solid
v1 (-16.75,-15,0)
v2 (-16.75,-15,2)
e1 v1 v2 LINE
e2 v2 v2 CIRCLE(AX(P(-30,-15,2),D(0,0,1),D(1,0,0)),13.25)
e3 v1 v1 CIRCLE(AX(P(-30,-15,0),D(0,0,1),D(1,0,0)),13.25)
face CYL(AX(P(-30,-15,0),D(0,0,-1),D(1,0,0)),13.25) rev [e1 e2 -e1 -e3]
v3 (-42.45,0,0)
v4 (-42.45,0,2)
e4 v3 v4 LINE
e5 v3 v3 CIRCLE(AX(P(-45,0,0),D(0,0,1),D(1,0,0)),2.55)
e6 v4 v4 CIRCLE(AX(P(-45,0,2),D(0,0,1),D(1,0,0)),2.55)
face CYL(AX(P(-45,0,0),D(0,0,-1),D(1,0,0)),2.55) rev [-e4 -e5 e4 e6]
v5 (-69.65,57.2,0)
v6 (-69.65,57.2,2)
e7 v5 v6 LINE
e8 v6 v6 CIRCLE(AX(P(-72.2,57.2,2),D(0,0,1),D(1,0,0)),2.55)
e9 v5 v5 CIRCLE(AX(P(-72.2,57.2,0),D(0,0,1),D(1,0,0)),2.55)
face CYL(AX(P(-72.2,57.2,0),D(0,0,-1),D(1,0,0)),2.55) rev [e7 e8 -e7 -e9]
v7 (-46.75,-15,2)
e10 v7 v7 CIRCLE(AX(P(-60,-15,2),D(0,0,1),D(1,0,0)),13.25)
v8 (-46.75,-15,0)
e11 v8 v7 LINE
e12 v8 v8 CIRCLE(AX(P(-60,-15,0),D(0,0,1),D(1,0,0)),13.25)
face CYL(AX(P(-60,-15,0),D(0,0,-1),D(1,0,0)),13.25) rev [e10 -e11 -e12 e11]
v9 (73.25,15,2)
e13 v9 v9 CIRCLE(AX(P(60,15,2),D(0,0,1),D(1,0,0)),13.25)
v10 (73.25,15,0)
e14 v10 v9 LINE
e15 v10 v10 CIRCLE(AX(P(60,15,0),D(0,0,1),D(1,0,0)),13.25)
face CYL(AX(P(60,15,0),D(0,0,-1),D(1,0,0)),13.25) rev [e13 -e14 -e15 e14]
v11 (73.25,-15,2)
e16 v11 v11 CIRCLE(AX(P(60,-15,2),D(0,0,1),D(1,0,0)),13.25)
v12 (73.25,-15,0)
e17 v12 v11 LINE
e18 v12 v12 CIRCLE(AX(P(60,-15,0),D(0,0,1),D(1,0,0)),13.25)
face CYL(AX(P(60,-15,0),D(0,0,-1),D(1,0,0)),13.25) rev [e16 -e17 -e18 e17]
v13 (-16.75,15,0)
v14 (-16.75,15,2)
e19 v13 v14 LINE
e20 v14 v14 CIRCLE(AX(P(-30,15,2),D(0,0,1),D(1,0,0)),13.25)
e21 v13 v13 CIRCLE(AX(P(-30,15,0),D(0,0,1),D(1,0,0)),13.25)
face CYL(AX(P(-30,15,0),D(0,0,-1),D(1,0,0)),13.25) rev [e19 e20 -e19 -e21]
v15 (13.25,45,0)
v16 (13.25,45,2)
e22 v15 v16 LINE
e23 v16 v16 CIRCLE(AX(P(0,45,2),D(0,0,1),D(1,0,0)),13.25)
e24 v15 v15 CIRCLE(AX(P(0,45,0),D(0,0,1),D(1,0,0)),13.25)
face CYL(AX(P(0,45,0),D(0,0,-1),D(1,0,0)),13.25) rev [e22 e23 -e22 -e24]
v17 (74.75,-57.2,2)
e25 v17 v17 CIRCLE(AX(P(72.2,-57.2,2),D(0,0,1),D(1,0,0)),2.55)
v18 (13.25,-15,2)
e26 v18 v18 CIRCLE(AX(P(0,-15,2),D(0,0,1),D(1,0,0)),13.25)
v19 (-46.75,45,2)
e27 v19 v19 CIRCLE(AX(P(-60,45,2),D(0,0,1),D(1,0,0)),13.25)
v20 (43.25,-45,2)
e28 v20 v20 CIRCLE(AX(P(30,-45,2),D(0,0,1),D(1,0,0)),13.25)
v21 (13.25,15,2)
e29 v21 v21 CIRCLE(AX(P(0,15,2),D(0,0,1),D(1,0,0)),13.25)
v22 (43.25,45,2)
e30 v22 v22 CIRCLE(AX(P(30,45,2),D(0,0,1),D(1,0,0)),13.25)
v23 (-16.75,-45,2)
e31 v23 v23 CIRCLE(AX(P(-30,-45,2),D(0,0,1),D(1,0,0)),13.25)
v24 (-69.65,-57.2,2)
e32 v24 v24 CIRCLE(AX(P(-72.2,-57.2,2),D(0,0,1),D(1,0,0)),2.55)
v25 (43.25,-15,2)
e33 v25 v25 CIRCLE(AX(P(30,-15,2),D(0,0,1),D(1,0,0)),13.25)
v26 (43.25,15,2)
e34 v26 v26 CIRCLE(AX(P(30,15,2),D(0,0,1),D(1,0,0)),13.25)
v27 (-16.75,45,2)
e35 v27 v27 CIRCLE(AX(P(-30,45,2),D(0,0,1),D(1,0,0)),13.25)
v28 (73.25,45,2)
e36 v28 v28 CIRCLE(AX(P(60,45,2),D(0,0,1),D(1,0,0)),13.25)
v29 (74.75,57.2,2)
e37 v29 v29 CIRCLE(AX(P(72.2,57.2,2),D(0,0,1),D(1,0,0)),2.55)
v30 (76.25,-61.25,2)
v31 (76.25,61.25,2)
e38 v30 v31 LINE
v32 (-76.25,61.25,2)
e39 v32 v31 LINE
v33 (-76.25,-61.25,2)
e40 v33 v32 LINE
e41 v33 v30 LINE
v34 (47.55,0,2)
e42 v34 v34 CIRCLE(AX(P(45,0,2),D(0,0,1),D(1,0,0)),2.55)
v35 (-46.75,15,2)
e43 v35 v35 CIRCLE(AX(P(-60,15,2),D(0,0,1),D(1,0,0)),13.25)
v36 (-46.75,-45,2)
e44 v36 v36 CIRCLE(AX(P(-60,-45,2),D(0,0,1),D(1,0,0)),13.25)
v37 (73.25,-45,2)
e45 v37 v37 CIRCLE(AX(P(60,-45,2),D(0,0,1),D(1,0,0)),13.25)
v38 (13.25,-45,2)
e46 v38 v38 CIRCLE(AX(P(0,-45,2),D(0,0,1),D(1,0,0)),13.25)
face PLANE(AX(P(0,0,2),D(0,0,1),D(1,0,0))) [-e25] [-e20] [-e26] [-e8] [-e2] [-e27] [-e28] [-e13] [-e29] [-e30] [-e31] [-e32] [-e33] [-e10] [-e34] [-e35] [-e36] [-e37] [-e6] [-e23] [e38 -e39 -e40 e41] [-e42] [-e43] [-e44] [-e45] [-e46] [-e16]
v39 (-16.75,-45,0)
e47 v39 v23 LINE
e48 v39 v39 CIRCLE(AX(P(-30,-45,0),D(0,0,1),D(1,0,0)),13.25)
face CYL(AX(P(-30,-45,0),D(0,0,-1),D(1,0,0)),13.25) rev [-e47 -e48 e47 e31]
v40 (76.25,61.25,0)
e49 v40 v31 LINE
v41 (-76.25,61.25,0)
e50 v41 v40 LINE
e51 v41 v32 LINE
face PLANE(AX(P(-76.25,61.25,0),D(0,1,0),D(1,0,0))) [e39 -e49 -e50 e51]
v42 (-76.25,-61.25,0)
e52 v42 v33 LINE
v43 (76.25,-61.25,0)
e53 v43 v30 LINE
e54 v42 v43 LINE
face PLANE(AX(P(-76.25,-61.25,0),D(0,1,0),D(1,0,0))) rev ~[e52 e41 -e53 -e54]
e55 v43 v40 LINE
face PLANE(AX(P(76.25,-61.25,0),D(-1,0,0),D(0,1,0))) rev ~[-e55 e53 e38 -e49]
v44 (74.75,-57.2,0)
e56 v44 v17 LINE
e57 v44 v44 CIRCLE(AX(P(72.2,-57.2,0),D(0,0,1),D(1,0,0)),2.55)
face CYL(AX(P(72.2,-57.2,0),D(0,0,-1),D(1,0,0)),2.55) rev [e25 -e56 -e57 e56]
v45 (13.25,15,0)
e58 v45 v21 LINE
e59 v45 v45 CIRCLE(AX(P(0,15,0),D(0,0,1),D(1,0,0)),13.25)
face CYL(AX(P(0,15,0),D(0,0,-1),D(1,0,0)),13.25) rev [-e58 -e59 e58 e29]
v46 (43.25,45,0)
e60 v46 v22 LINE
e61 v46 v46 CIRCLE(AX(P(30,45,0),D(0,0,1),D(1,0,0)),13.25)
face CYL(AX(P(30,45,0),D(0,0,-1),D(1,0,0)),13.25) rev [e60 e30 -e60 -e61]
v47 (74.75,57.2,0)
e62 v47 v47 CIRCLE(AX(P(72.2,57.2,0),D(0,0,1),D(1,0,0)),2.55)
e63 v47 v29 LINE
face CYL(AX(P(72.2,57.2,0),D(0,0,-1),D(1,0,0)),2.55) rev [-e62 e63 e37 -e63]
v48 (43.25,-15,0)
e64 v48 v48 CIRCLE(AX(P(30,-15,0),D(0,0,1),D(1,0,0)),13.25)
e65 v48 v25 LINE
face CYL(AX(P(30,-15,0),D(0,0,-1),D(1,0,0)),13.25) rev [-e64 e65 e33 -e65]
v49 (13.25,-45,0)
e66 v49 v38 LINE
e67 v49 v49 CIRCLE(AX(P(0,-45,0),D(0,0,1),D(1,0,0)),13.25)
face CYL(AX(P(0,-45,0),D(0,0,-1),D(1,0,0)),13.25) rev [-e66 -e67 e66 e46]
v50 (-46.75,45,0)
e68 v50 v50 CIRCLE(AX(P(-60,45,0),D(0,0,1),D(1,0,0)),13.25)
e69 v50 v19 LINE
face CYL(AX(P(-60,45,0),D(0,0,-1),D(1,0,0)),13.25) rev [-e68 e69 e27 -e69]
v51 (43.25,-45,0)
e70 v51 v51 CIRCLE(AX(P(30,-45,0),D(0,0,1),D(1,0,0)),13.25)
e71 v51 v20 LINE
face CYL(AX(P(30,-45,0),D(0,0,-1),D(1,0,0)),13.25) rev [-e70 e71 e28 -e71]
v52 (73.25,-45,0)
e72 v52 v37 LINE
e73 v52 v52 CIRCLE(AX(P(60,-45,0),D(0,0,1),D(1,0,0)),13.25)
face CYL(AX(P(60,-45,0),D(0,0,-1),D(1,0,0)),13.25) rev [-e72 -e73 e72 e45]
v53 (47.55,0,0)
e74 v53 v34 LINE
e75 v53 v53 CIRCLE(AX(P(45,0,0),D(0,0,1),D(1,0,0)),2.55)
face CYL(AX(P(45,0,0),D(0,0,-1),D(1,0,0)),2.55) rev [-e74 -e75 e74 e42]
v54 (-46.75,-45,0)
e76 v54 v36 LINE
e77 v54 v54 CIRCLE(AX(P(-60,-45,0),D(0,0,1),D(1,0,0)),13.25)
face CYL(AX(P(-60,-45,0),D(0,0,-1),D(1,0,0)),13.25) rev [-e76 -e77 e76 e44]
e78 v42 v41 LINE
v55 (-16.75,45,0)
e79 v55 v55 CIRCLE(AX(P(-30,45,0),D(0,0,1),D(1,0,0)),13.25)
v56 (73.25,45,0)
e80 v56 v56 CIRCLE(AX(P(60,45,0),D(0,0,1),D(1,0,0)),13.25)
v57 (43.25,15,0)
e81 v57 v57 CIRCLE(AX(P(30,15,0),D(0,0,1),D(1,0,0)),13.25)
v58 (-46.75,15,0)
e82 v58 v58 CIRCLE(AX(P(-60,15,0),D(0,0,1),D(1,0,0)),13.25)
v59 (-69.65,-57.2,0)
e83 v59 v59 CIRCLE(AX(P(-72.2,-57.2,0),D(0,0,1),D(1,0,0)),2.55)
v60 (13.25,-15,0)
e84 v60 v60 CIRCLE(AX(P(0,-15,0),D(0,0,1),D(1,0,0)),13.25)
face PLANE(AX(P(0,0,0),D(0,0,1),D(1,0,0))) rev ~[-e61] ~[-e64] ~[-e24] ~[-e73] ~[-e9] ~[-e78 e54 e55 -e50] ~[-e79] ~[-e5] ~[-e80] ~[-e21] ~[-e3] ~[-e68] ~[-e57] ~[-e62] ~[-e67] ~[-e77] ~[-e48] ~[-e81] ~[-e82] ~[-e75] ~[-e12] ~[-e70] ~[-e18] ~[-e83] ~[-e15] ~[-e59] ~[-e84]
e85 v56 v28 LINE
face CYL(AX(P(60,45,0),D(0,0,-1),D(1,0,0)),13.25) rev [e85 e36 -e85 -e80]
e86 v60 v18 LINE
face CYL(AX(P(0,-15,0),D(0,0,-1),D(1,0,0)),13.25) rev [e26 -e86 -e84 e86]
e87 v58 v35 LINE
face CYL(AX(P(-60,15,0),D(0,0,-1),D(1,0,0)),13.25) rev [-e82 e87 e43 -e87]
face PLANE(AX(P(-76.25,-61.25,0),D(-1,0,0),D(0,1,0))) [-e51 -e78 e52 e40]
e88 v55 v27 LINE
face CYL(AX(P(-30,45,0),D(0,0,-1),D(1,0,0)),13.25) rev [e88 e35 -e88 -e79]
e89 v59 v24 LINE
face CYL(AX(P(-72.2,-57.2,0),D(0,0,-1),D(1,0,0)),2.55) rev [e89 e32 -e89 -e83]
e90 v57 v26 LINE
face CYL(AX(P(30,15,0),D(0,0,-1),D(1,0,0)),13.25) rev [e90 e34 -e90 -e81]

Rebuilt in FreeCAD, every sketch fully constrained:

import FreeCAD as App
import Part
import Sketcher
from FreeCAD import Vector

doc = App.newDocument("Part")
params = doc.addObject("Spreadsheet::Sheet", "Params")
for row, (alias, value) in enumerate([
    ("sketch1_diameter", "5.1 mm"),
    ("sketch1_diameter2", "26.5 mm"),
    ("sketch1_width", "152.5 mm"),
    ("sketch1_height", "122.5 mm"),
    ("pad1_length", "2 mm"),
], start=1):
    params.set(f"A{row}", alias)
    params.set(f"B{row}", "=" + value)
    params.setAlias(f"B{row}", alias)

body = doc.addObject("PartDesign::Body", "Body")

# Sketch on XY plane
sketch1 = body.newObject("Sketcher::SketchObject", "Sketch")
sketch1.AttachmentSupport = (doc.getObject("XY_Plane"), [""])
sketch1.MapMode = "FlatFace"
sketch1.addGeometry(Part.LineSegment(Vector(-76.2, 61.2, 0), Vector(-76.2, -61.2, 0)), False)
sketch1.addGeometry(Part.LineSegment(Vector(-76.2, -61.2, 0), Vector(76.2, -61.2, 0)), False)
sketch1.addGeometry(Part.LineSegment(Vector(76.2, -61.2, 0), Vector(76.2, 61.2, 0)), False)
sketch1.addGeometry(Part.LineSegment(Vector(76.2, 61.2, 0), Vector(-76.2, 61.2, 0)), False)
sketch1.addGeometry(Part.Circle(Vector(-72.2, -57.2, 0), Vector(0, 0, 1), 2.5), False)
sketch1.addGeometry(Part.Circle(Vector(-60, -45, 0), Vector(0, 0, 1), 13.2), False)
sketch1.addGeometry(Part.Circle(Vector(-30, -45, 0), Vector(0, 0, 1), 13.2), False)
sketch1.addGeometry(Part.Circle(Vector(-60, -15, 0), Vector(0, 0, 1), 13.2), False)
sketch1.addGeometry(Part.Circle(Vector(-45, 0, 0), Vector(0, 0, 1), 2.5), False)
sketch1.addGeometry(Part.Circle(Vector(-30, -15, 0), Vector(0, 0, 1), 13.2), False)
sketch1.addGeometry(Part.Circle(Vector(0, -45, 0), Vector(0, 0, 1), 13.2), False)
sketch1.addGeometry(Part.Circle(Vector(30, -45, 0), Vector(0, 0, 1), 13.2), False)
sketch1.addGeometry(Part.Circle(Vector(72.2, -57.2, 0), Vector(0, 0, 1), 2.5), False)
sketch1.addGeometry(Part.Circle(Vector(60, -45, 0), Vector(0, 0, 1), 13.2), False)
sketch1.addGeometry(Part.Circle(Vector(0, -15, 0), Vector(0, 0, 1), 13.2), False)
sketch1.addGeometry(Part.Circle(Vector(30, -15, 0), Vector(0, 0, 1), 13.2), False)
sketch1.addGeometry(Part.Circle(Vector(60, -15, 0), Vector(0, 0, 1), 13.2), False)
sketch1.addGeometry(Part.Circle(Vector(45, 0, 0), Vector(0, 0, 1), 2.5), False)
sketch1.addGeometry(Part.Circle(Vector(-60, 15, 0), Vector(0, 0, 1), 13.2), False)
sketch1.addGeometry(Part.Circle(Vector(-30, 15, 0), Vector(0, 0, 1), 13.2), False)
sketch1.addGeometry(Part.Circle(Vector(-60, 45, 0), Vector(0, 0, 1), 13.2), False)
sketch1.addGeometry(Part.Circle(Vector(-72.2, 57.2, 0), Vector(0, 0, 1), 2.5), False)
sketch1.addGeometry(Part.Circle(Vector(-30, 45, 0), Vector(0, 0, 1), 13.2), False)
sketch1.addGeometry(Part.Circle(Vector(0, 15, 0), Vector(0, 0, 1), 13.2), False)
sketch1.addGeometry(Part.Circle(Vector(30, 15, 0), Vector(0, 0, 1), 13.2), False)
sketch1.addGeometry(Part.Circle(Vector(60, 15, 0), Vector(0, 0, 1), 13.2), False)
sketch1.addGeometry(Part.Circle(Vector(0, 45, 0), Vector(0, 0, 1), 13.2), False)
sketch1.addGeometry(Part.Circle(Vector(30, 45, 0), Vector(0, 0, 1), 13.2), False)
sketch1.addGeometry(Part.Circle(Vector(60, 45, 0), Vector(0, 0, 1), 13.2), False)
sketch1.addGeometry(Part.Circle(Vector(72.2, 57.2, 0), Vector(0, 0, 1), 2.5), False)
sketch1.addConstraint(Sketcher.Constraint("Coincident", 0, 2, 1, 1))
sketch1.addConstraint(Sketcher.Constraint("Coincident", 1, 2, 2, 1))
sketch1.addConstraint(Sketcher.Constraint("Coincident", 2, 2, 3, 1))
sketch1.addConstraint(Sketcher.Constraint("Coincident", 3, 2, 0, 1))
sketch1.addConstraint(Sketcher.Constraint("Vertical", 0))
sketch1.addConstraint(Sketcher.Constraint("Horizontal", 1))
sketch1.addConstraint(Sketcher.Constraint("Vertical", 2))
sketch1.addConstraint(Sketcher.Constraint("Horizontal", 3))
sketch1.addConstraint(Sketcher.Constraint("Equal", 5, 6))
sketch1.addConstraint(Sketcher.Constraint("Equal", 6, 7))
sketch1.addConstraint(Sketcher.Constraint("Equal", 4, 8))
sketch1.addConstraint(Sketcher.Constraint("Equal", 7, 9))
sketch1.addConstraint(Sketcher.Constraint("Equal", 9, 10))
sketch1.addConstraint(Sketcher.Constraint("Equal", 10, 11))
sketch1.addConstraint(Sketcher.Constraint("Equal", 8, 12))
sketch1.addConstraint(Sketcher.Constraint("Equal", 11, 13))
sketch1.addConstraint(Sketcher.Constraint("Equal", 13, 14))
sketch1.addConstraint(Sketcher.Constraint("Equal", 14, 15))
sketch1.addConstraint(Sketcher.Constraint("Equal", 15, 16))
sketch1.addConstraint(Sketcher.Constraint("Equal", 12, 17))
sketch1.addConstraint(Sketcher.Constraint("Equal", 16, 18))
sketch1.addConstraint(Sketcher.Constraint("Equal", 18, 19))
sketch1.addConstraint(Sketcher.Constraint("Equal", 19, 20))
sketch1.addConstraint(Sketcher.Constraint("Equal", 17, 21))
sketch1.addConstraint(Sketcher.Constraint("Equal", 20, 22))
sketch1.addConstraint(Sketcher.Constraint("Equal", 22, 23))
sketch1.addConstraint(Sketcher.Constraint("Equal", 23, 24))
sketch1.addConstraint(Sketcher.Constraint("Equal", 24, 25))
sketch1.addConstraint(Sketcher.Constraint("Equal", 25, 26))
sketch1.addConstraint(Sketcher.Constraint("Equal", 26, 27))
sketch1.addConstraint(Sketcher.Constraint("Equal", 27, 28))
sketch1.addConstraint(Sketcher.Constraint("Equal", 21, 29))
sketch1.addConstraint(Sketcher.Constraint("Symmetric", 8, 3, 17, 3, -1, 1))
sketch1.addConstraint(Sketcher.Constraint("Symmetric", 16, 3, 18, 3, -1, 1))
sketch1.addConstraint(Sketcher.Constraint("Symmetric", 15, 3, 19, 3, -1, 1))
sketch1.addConstraint(Sketcher.Constraint("Symmetric", 13, 3, 20, 3, -1, 1))
sketch1.addConstraint(Sketcher.Constraint("Symmetric", 12, 3, 21, 3, -1, 1))
sketch1.addConstraint(Sketcher.Constraint("Symmetric", 11, 3, 22, 3, -1, 1))
sketch1.addConstraint(Sketcher.Constraint("Symmetric", 14, 3, 23, 3, -1, 1))
sketch1.addConstraint(Sketcher.Constraint("Symmetric", 9, 3, 24, 3, -1, 1))
sketch1.addConstraint(Sketcher.Constraint("Symmetric", 7, 3, 25, 3, -1, 1))
sketch1.addConstraint(Sketcher.Constraint("Symmetric", 10, 3, 26, 3, -1, 1))
sketch1.addConstraint(Sketcher.Constraint("Symmetric", 6, 3, 27, 3, -1, 1))
sketch1.addConstraint(Sketcher.Constraint("Symmetric", 5, 3, 28, 3, -1, 1))
sketch1.addConstraint(Sketcher.Constraint("Symmetric", 4, 3, 29, 3, -1, 1))
sketch1.addConstraint(Sketcher.Constraint("Symmetric", 0, 2, 2, 2, -1, 1))
sketch1.addConstraint(Sketcher.Constraint("Symmetric", 6, 3, 11, 3, -2))
sketch1.addConstraint(Sketcher.Constraint("Symmetric", 4, 3, 12, 3, -2))
sketch1.addConstraint(Sketcher.Constraint("Symmetric", 5, 3, 13, 3, -2))
sketch1.addConstraint(Sketcher.Constraint("Symmetric", 9, 3, 15, 3, -2))
sketch1.addConstraint(Sketcher.Constraint("Symmetric", 7, 3, 16, 3, -2))
sketch1.addConstraint(Sketcher.Constraint("PointOnObject", 8, 3, -1))
sketch1.addConstraint(Sketcher.Constraint("PointOnObject", 10, 3, -2))
sketch1.addConstraint(Sketcher.Constraint("PointOnObject", 14, 3, -2))
sketch1.addConstraint(Sketcher.Constraint("Horizontal", 5, 3, 6, 3))
sketch1.addConstraint(Sketcher.Constraint("Horizontal", 7, 3, 9, 3))
sketch1.addConstraint(Sketcher.Constraint("Horizontal", 6, 3, 10, 3))
sketch1.addConstraint(Sketcher.Constraint("Horizontal", 9, 3, 14, 3))
sketch1.addConstraint(Sketcher.Constraint("Vertical", 5, 3, 7, 3))
sketch1.addConstraint(Sketcher.Constraint("Vertical", 6, 3, 9, 3))
sketch1.addConstraint(Sketcher.Constraint("Diameter", 4, 5.1))
sketch1.addConstraint(Sketcher.Constraint("Diameter", 5, 26.5))
sketch1.addConstraint(Sketcher.Constraint("DistanceX", 1, 1, 1, 2, 152.5))
sketch1.addConstraint(Sketcher.Constraint("DistanceY", 0, 2, 0, 1, 122.5))
sketch1.addConstraint(Sketcher.Constraint("DistanceX", 5, 3, -1, 1, 60.0))
sketch1.addConstraint(Sketcher.Constraint("DistanceY", 5, 3, -1, 1, 45.0))
sketch1.addConstraint(Sketcher.Constraint("DistanceX", 6, 3, -1, 1, 30.0))
sketch1.addConstraint(Sketcher.Constraint("DistanceY", 7, 3, -1, 1, 15.0))
sketch1.addConstraint(Sketcher.Constraint("DistanceX", 8, 3, -1, 1, 45.0))
sketch1.addConstraint(Sketcher.Constraint("DistanceX", 4, 3, -1, 1, 72.2))
sketch1.addConstraint(Sketcher.Constraint("DistanceY", 4, 3, -1, 1, 57.2))
sketch1.setExpression("Constraints[60]", "Params.sketch1_diameter")
sketch1.setExpression("Constraints[61]", "Params.sketch1_diameter2")
sketch1.setExpression("Constraints[62]", "Params.sketch1_width")
sketch1.setExpression("Constraints[63]", "Params.sketch1_height")
pad1 = body.newObject("PartDesign::Pad", "Pad")
pad1.Profile = sketch1
pad1.setExpression("Length", "Params.pad1_length")

doc.recompute()
